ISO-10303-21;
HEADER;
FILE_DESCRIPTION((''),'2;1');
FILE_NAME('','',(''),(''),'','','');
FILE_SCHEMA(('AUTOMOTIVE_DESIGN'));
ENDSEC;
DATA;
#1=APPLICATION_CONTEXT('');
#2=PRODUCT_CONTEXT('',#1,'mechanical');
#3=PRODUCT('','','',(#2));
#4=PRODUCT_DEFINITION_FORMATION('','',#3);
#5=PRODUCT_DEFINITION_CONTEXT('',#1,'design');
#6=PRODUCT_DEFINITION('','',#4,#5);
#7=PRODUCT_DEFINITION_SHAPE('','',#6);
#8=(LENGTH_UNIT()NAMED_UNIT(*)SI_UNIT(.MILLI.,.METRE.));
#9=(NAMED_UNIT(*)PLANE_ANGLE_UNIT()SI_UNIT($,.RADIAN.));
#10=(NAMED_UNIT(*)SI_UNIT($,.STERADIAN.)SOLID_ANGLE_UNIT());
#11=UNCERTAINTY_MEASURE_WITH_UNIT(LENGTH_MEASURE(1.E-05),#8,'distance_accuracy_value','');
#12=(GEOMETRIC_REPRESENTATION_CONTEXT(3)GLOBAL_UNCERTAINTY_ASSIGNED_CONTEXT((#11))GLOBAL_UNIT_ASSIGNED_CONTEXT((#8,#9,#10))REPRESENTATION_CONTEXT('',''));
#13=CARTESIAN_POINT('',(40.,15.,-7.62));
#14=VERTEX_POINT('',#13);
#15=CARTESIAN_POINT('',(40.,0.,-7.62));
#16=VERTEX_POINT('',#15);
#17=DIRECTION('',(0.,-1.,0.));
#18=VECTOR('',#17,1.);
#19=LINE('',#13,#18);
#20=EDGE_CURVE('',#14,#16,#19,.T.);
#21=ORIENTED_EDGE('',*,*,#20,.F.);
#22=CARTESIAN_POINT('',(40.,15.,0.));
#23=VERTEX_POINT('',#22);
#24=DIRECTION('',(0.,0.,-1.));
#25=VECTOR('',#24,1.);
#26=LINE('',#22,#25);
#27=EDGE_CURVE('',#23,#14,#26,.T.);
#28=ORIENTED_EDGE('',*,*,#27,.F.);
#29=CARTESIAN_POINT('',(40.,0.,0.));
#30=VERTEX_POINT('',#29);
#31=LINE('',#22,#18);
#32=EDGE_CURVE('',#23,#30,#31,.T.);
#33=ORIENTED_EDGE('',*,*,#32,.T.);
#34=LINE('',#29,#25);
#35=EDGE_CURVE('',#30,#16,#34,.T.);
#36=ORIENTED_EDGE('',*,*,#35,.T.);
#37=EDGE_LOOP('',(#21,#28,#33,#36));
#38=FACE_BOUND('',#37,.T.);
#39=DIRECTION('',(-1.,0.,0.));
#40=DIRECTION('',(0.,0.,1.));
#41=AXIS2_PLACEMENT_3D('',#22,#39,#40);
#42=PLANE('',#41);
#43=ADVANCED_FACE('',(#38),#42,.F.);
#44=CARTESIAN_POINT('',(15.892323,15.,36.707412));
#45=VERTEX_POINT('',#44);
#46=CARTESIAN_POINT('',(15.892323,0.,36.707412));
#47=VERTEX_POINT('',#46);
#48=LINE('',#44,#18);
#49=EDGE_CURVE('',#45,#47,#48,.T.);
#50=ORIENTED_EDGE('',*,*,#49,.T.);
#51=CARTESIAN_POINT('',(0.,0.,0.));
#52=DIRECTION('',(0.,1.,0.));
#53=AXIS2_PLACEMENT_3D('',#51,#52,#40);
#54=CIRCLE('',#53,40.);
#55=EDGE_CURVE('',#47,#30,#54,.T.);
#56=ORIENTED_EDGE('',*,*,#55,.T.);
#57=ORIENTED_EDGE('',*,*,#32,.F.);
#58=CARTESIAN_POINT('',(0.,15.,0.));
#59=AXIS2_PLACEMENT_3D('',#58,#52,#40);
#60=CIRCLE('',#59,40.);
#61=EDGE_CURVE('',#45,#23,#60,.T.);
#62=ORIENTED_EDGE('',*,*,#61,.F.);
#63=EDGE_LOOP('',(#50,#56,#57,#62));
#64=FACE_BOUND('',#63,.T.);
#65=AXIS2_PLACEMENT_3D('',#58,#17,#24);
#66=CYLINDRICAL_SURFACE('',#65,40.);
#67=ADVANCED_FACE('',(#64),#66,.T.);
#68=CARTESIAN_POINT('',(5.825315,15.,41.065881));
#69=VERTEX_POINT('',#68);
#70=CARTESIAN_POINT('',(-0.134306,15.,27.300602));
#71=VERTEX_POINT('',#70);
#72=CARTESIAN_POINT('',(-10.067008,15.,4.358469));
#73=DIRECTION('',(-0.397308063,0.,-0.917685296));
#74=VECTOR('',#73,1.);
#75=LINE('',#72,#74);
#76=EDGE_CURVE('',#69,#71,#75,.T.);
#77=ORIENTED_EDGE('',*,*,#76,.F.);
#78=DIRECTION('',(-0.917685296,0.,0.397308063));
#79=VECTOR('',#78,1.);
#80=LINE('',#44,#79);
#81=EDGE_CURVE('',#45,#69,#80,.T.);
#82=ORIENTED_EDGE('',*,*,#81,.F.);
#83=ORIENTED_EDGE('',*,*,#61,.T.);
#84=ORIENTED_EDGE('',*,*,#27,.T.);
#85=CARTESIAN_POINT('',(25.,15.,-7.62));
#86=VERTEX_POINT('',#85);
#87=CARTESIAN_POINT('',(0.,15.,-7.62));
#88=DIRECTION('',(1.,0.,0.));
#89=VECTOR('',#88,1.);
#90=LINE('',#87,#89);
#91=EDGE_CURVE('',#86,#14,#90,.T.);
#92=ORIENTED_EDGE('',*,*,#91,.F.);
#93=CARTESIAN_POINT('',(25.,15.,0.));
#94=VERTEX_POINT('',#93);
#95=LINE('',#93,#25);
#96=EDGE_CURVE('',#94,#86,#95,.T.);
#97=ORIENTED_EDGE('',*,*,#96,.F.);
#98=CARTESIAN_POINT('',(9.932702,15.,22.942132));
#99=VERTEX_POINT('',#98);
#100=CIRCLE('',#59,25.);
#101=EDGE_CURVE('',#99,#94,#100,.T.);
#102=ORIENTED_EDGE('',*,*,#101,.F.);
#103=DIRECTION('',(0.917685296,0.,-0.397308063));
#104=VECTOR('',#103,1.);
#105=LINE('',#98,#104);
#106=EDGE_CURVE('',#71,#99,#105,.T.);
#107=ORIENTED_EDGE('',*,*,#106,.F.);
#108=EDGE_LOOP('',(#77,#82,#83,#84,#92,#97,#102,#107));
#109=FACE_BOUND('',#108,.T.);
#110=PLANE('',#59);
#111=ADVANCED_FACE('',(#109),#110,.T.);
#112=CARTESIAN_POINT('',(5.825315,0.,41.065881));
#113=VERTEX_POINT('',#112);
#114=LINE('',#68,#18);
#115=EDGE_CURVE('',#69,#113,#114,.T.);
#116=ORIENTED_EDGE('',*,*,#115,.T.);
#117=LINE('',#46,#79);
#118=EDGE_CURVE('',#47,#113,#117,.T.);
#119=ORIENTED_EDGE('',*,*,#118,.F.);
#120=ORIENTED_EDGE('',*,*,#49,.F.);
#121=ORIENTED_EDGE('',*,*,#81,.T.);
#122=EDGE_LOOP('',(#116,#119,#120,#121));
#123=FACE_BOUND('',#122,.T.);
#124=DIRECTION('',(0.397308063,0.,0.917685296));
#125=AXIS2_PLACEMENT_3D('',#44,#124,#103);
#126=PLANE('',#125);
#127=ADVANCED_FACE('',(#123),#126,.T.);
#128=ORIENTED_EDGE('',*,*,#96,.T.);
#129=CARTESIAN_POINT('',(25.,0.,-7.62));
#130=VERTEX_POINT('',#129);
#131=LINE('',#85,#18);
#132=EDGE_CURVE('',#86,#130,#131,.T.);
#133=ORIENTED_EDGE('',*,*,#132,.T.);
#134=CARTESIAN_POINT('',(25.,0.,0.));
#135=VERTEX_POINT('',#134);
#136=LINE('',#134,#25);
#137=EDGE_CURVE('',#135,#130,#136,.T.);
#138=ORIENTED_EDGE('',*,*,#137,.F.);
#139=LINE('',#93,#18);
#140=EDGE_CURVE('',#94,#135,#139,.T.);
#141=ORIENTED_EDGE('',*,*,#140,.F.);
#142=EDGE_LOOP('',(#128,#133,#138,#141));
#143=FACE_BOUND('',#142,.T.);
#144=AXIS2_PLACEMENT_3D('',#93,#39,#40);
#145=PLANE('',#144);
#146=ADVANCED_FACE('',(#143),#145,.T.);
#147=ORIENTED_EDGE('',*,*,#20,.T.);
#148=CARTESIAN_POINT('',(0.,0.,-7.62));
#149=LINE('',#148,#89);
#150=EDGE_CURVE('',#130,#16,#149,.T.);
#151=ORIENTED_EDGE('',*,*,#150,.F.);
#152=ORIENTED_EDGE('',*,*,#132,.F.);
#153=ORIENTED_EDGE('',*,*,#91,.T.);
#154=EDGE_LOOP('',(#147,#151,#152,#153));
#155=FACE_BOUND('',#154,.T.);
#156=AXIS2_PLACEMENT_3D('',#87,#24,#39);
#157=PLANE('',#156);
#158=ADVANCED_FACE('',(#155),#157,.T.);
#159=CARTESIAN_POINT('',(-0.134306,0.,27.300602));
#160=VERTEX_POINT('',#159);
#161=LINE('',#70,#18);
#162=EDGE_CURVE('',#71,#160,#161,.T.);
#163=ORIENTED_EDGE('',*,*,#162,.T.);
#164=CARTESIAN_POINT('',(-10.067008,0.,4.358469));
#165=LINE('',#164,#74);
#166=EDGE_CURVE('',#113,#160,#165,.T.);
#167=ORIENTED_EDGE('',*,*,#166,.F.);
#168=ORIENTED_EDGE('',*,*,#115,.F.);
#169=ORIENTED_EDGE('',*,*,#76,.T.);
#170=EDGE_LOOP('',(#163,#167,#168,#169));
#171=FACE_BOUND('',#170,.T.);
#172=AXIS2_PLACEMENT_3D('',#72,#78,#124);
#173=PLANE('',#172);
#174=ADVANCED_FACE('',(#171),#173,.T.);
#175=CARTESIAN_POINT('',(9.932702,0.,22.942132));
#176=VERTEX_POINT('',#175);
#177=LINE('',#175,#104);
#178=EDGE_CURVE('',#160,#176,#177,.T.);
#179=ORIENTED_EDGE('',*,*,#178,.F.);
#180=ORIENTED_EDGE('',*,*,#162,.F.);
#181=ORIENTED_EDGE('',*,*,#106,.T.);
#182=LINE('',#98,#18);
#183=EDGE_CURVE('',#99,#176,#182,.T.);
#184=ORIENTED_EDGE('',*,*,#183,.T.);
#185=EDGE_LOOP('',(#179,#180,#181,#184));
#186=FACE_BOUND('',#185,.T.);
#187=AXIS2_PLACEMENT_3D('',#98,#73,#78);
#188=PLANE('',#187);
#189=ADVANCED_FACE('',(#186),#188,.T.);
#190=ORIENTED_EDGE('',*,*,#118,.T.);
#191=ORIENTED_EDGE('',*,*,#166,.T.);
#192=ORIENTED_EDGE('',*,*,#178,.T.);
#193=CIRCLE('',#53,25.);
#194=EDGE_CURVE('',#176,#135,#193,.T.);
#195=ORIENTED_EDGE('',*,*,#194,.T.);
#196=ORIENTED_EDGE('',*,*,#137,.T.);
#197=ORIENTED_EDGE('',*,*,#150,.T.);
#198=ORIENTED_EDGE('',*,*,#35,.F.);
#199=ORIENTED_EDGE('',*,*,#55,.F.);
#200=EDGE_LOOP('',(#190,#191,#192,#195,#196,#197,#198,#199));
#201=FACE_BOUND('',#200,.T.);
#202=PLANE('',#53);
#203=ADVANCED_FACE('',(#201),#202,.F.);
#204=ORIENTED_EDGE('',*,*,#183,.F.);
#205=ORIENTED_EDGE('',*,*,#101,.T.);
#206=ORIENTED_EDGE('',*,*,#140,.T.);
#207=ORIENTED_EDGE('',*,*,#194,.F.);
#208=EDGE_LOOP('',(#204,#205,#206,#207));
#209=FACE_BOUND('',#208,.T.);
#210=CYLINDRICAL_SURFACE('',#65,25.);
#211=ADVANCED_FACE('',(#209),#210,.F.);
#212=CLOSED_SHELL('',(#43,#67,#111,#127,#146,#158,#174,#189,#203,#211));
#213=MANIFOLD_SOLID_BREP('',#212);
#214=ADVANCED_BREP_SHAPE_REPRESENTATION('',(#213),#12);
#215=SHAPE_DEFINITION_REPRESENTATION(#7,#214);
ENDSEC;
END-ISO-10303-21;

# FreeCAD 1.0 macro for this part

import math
import FreeCAD as App
import Part
import Sketcher

V = App.Vector
Q = App.Units.Quantity

doc = App.newDocument("Part")
body = doc.addObject("PartDesign::Body", "Body")

# Sketch on XZ plane
sketch1 = body.newObject("Sketcher::SketchObject", "Sketch")
sketch1.AttachmentSupport = (doc.getObject("XZ_Plane"), [""])
sketch1.MapMode = "FlatFace"
sketch1.addGeometry([
    Part.LineSegment(V(9.9, 22.9, 0), V(-0.1, 27.3, 0)),  # 0
    Part.LineSegment(V(-0.1, 27.3, 0), V(5.2, 39.7, 0)),  # 1
    Part.LineSegment(V(5.2, 39.7, 0), V(5.8, 41.1, 0)),  # 2
    Part.LineSegment(V(5.8, 41.1, 0), V(15.9, 36.7, 0)),  # 3
    Part.ArcOfCircle(Part.Circle(V(0, 0, 0), V(0, 0, 1), 40), math.radians(0), math.radians(67)),  # 4
    Part.LineSegment(V(40, 0, 0), V(40, -7.6, 0)),  # 5
    Part.LineSegment(V(40, -7.6, 0), V(25, -7.6, 0)),  # 6
    Part.LineSegment(V(25, -7.6, 0), V(25, 0, 0)),  # 7
    Part.ArcOfCircle(Part.Circle(V(0, 0, 0), V(0, 0, 1), 25), math.radians(0), math.radians(67)),  # 8
], False)
sketch1.addConstraint([
    Sketcher.Constraint("Coincident", 0, 2, 1, 1),
    Sketcher.Constraint("Coincident", 1, 2, 2, 1),
    Sketcher.Constraint("Coincident", 2, 2, 3, 1),
    Sketcher.Constraint("Tangent", 3, 2, 4, 2),
    Sketcher.Constraint("Tangent", 4, 1, 5, 1),
    Sketcher.Constraint("Coincident", 5, 2, 6, 1),
    Sketcher.Constraint("Coincident", 6, 2, 7, 1),
    Sketcher.Constraint("Tangent", 7, 2, 8, 1),
    Sketcher.Constraint("Tangent", 8, 2, 0, 1),
    Sketcher.Constraint("Vertical", 5),
    Sketcher.Constraint("Horizontal", 6),
    Sketcher.Constraint("Vertical", 7),
    Sketcher.Constraint("Coincident", 4, 3, -1, 1),
    Sketcher.Constraint("Coincident", 8, 3, -1, 1),
    Sketcher.Constraint("Perpendicular", 0, 1),
    Sketcher.Constraint("Parallel", 1, 2),
    Sketcher.Constraint("Perpendicular", 2, 3),
    Sketcher.Constraint("Radius", 4, Q("40 mm")),
    Sketcher.Constraint("Radius", 8, Q("25 mm")),
    Sketcher.Constraint("DistanceY", 5, 2, 5, 1, Q("7.62 mm")),
    Sketcher.Constraint("Angle", 0, Q("156.59 deg")),
    Sketcher.Constraint("Distance", 0, Q("10.97 mm")),
    Sketcher.Constraint("DistanceX", -1, 1, 1, 2, Q("5.215978 mm")),
])
pad1 = body.newObject("PartDesign::Pad", "Pad")
pad1.Profile = sketch1
pad1.Length = 15
pad1.Reversed = True

doc.recompute()
